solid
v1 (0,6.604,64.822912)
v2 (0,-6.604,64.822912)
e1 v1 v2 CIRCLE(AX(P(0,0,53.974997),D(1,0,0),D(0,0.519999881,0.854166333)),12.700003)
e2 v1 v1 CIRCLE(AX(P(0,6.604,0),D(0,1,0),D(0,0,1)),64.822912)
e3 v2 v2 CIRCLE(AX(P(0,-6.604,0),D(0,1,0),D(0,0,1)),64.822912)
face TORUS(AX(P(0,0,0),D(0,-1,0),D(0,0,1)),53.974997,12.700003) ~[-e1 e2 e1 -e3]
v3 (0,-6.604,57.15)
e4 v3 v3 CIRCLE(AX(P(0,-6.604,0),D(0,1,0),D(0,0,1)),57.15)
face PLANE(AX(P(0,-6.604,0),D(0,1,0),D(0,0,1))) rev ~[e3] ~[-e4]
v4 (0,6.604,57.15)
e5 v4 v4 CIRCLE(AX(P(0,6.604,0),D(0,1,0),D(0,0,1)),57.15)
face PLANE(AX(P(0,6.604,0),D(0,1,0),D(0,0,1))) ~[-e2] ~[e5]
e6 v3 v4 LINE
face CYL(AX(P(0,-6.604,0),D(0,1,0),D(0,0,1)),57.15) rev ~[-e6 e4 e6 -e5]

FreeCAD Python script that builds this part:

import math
import FreeCAD as App
import Part
import Sketcher
Q = App.Units.Quantity

doc = App.newDocument("Part")
body = doc.addObject("PartDesign::Body", "Body")

# Sketch on YZ plane
sketch1 = body.newObject("Sketcher::SketchObject", "Sketch")
sketch1.AttachmentSupport = (doc.getObject("YZ_Plane"), [""])
sketch1.MapMode = "FlatFace"
sketch1.addGeometry(Part.LineSegment(App.Vector(-6.604, 64.822912, 0), App.Vector(-6.604, 57.15, 0)), False)
sketch1.addGeometry(Part.LineSegment(App.Vector(-6.604, 57.15, 0), App.Vector(6.604, 57.15, 0)), False)
sketch1.addGeometry(Part.LineSegment(App.Vector(6.604, 57.15, 0), App.Vector(6.604, 64.822912, 0)), False)
sketch1.addGeometry(Part.ArcOfCircle(Part.Circle(App.Vector(0, 53.974997, 0), App.Vector(0, 0, 1), 12.700003), math.radians(58.667756), math.radians(121.332244)), False)
sketch1.addConstraint(Sketcher.Constraint("Coincident", 0, 2, 1, 1))
sketch1.addConstraint(Sketcher.Constraint("Coincident", 1, 2, 2, 1))
sketch1.addConstraint(Sketcher.Constraint("Coincident", 2, 2, 3, 1))
sketch1.addConstraint(Sketcher.Constraint("Coincident", 3, 2, 0, 1))
sketch1.addConstraint(Sketcher.Constraint("Vertical", 0))
sketch1.addConstraint(Sketcher.Constraint("Horizontal", 1))
sketch1.addConstraint(Sketcher.Constraint("Vertical", 2))
sketch1.addConstraint(Sketcher.Constraint("Symmetric", 2, 2, 3, 2, -2))
sketch1.addConstraint(Sketcher.Constraint("Radius", 3, Q("0.5000001 in")))
sketch1.addConstraint(Sketcher.Constraint("DistanceX", 1, 1, 1, 2, Q("0.52 in")))
sketch1.addConstraint(Sketcher.Constraint("DistanceY", -1, 1, 0, 2, Q("2.25 in")))
sketch1.addConstraint(Sketcher.Constraint("DistanceY", -1, 1, 3, 3, Q("2.1249999 in")))
revolution = body.newObject("PartDesign::Revolution", "Revolution")
revolution.Profile = sketch1
revolution.ReferenceAxis = (sketch1, ["H_Axis"])
revolution.Angle = 360

doc.recompute()
